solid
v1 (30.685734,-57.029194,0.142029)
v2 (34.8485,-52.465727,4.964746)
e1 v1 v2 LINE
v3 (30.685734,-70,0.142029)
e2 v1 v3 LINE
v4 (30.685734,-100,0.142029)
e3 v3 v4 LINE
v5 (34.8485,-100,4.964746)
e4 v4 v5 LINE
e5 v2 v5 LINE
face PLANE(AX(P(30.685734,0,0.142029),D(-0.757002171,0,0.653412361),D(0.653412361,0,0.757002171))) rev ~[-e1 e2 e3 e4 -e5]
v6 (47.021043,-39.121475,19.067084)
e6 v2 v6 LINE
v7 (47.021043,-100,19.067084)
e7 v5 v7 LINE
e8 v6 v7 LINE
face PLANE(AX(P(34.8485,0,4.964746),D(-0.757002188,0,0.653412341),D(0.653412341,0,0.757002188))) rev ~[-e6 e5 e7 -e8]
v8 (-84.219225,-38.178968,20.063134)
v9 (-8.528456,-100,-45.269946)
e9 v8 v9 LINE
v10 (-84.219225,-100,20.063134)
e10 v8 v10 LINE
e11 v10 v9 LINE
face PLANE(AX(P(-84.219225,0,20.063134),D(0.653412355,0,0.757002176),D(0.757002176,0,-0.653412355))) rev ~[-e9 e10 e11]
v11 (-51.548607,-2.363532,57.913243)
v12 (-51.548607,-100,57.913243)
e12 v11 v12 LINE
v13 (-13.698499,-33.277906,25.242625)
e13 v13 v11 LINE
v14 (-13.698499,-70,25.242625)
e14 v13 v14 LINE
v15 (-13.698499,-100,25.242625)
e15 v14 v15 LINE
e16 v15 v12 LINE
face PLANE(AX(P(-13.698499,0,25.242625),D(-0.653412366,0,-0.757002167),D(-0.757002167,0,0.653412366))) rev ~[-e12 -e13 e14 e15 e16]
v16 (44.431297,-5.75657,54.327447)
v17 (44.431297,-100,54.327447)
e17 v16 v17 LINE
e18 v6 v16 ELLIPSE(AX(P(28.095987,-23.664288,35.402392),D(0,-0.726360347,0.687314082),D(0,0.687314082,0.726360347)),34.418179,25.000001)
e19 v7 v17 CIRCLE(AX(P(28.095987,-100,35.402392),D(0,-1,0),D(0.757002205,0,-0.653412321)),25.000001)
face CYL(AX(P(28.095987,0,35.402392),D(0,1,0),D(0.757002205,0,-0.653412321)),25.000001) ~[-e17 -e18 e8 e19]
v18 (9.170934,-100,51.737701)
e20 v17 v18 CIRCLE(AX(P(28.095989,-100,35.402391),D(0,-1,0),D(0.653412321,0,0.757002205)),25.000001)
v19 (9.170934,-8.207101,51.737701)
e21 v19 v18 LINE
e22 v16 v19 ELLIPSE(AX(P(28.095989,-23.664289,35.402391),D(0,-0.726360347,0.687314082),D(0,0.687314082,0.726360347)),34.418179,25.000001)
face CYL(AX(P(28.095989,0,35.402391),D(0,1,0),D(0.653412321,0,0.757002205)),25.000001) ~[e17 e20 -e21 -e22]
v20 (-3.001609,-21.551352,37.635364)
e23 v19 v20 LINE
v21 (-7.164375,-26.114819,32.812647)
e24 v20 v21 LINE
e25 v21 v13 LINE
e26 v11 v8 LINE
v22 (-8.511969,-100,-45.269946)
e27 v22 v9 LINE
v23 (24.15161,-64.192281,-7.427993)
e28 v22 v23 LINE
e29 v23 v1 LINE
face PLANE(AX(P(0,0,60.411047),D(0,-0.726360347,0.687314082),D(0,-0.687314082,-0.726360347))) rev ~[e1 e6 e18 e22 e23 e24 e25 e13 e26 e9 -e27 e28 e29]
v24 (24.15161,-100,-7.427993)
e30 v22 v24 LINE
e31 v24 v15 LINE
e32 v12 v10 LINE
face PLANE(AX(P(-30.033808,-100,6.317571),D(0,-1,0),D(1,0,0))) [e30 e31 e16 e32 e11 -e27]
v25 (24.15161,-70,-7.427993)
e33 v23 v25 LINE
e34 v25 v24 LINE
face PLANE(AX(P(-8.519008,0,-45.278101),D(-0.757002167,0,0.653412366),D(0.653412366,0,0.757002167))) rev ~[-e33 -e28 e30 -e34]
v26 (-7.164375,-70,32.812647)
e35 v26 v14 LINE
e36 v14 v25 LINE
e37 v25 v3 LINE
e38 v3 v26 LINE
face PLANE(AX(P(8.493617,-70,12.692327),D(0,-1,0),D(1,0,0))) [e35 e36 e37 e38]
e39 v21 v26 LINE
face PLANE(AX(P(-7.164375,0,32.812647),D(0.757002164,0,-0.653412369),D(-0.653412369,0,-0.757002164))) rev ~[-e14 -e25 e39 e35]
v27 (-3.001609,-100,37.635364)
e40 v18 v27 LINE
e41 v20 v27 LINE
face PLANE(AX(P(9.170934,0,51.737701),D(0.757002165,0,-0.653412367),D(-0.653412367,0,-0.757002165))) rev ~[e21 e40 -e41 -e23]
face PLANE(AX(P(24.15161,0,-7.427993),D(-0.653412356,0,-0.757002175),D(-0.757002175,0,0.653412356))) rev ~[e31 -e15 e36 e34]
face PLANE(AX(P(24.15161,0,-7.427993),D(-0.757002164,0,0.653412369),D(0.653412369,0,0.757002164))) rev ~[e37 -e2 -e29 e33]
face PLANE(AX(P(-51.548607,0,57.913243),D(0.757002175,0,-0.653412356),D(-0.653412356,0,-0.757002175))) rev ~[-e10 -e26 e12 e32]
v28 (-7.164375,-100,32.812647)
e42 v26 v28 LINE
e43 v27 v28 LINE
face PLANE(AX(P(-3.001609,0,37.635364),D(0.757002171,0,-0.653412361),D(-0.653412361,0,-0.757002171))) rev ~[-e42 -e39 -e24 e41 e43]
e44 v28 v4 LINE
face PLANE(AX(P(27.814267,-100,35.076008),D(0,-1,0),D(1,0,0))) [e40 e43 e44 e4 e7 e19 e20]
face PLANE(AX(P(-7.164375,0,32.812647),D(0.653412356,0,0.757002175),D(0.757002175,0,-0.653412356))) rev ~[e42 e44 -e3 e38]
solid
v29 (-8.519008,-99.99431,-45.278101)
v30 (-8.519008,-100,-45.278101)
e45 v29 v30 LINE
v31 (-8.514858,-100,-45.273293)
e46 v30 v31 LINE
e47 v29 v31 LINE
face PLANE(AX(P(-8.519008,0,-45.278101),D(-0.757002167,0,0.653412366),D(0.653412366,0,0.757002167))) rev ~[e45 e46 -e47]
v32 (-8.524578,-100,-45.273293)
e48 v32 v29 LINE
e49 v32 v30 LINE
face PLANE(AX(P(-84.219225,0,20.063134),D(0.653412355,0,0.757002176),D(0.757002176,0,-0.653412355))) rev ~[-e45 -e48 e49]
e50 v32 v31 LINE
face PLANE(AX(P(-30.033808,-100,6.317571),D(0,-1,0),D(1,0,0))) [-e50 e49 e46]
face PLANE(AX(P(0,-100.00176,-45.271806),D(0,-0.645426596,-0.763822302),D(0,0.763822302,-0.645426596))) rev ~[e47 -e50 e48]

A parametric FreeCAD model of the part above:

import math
import FreeCAD as App
import Part
import Sketcher

V = App.Vector
Q = App.Units.Quantity


def add_polygon(sketch, points):
    """Adds a closed chain of lines whose ends are joined by coincident constraints."""
    first, n = sketch.GeometryCount, len(points)
    for a, b in zip(points, points[1:] + points[:1]):
        sketch.addGeometry(Part.LineSegment(App.Vector(*a, 0), App.Vector(*b, 0)), False)
    for i in range(n):
        sketch.addConstraint(Sketcher.Constraint("Coincident", first + i, 2, first + (i + 1) % n, 1))

doc = App.newDocument("Part")
body = doc.addObject("PartDesign::Body", "Body")
body.AllowCompound = True

# Sketch on XZ plane
sketch1 = body.newObject("Sketcher::SketchObject", "Sketch")
sketch1.AttachmentSupport = (doc.getObject("XZ_Plane"), [""])
sketch1.MapMode = "FlatFace"
add_polygon(sketch1, [(-14, 25), (24, -7), (31, 0), (-7, 33)])  # lines 0-3
sketch1.addConstraint([
    Sketcher.Constraint("Perpendicular", 0, 1),
    Sketcher.Constraint("Perpendicular", 1, 2),
    Sketcher.Constraint("Perpendicular", 2, 3),
    Sketcher.Constraint("Distance", 0, Q("50 mm")),
    Sketcher.Constraint("Distance", 1, Q("10 mm")),
    Sketcher.Constraint("DistanceX", 3, 2, -1, 1, Q("13.698499 mm")),
    Sketcher.Constraint("DistanceX", -1, 1, 0, 2, Q("24.15161 mm")),
    Sketcher.Constraint("DistanceY", -1, 1, 1, 2, Q("0.142029 mm")),
])
pad1 = body.newObject("PartDesign::Pad", "Pad")
pad1.Profile = sketch1
pad1.Length = 70

# Sketch on XZ plane
sketch2 = body.newObject("Sketcher::SketchObject", "Sketch001")
sketch2.AttachmentSupport = (doc.getObject("XZ_Plane"), [""])
sketch2.MapMode = "FlatFace"
add_polygon(sketch2, [(-84, 20), (-9, -45), (24, -7), (-14, 25), (-52, 58)])  # lines 0-4
sketch2.addGeometry(Part.LineSegment(V(35, 5, 0), V(47, 19, 0)), False)  # 5
sketch2.addGeometry(Part.ArcOfCircle(Part.Circle(V(28, 35, 0), V(0, 0, 1), 25), math.radians(-41), math.radians(49)), False)  # 6
sketch2.addGeometry(Part.ArcOfCircle(Part.Circle(V(28, 35, 0), V(0, 0, 1), 25), math.radians(49), math.radians(139)), False)  # 7
sketch2.addGeometry(Part.LineSegment(V(9, 52, 0), V(-3, 38, 0)), False)  # 8
sketch2.addGeometry(Part.LineSegment(V(-3, 38, 0), V(-7, 33, 0)), False)  # 9
sketch2.addGeometry(Part.LineSegment(V(-7, 33, 0), V(31, 0, 0)), False)  # 10
sketch2.addGeometry(Part.LineSegment(V(31, 0, 0), V(35, 5, 0)), False)  # 11
sketch2.addConstraint([
    Sketcher.Constraint("Tangent", 5, 2, 6, 1),
    Sketcher.Constraint("Tangent", 6, 2, 7, 1),
    Sketcher.Constraint("Tangent", 7, 2, 8, 1),
    Sketcher.Constraint("Coincident", 8, 2, 9, 1),
    Sketcher.Constraint("Coincident", 9, 2, 10, 1),
    Sketcher.Constraint("Coincident", 10, 2, 11, 1),
    Sketcher.Constraint("Coincident", 11, 2, 5, 1),
    Sketcher.Constraint("Equal", 6, 7),
    Sketcher.Constraint("Perpendicular", 0, 1),
    Sketcher.Constraint("Perpendicular", 1, 2),
    Sketcher.Constraint("Parallel", 2, 3),
    Sketcher.Constraint("Perpendicular", 3, 4),
    Sketcher.Constraint("Parallel", 4, 5),
    Sketcher.Constraint("Parallel", 5, 8),
    Sketcher.Constraint("Parallel", 8, 9),
    Sketcher.Constraint("Perpendicular", 9, 10),
    Sketcher.Constraint("Perpendicular", 10, 11),
    Sketcher.Constraint("Equal", 1, 2),
    Sketcher.Constraint("Equal", 2, 3),
    Sketcher.Constraint("Equal", 5, 8),
    Sketcher.Constraint("Equal", 4, 10),
    Sketcher.Constraint("Radius", 6, Q("25.000001 mm")),
    Sketcher.Constraint("DistanceY", 0, 2, -1, 1, Q("45.278101 mm")),
    Sketcher.Constraint("DistanceX", 2, 2, -1, 1, Q("13.698499 mm")),
    Sketcher.Constraint("DistanceY", -1, 1, 7, 2, Q("51.737701 mm")),
    Sketcher.Constraint("DistanceX", -1, 1, 11, 2, Q("34.8485 mm")),
    Sketcher.Constraint("DistanceX", 3, 2, 0, 2, Q("43.029599 mm")),
    Sketcher.Constraint("Distance", 5, Q("18.629191 mm")),
    Sketcher.Constraint("Distance", 9, Q("6.37081 mm")),
    Sketcher.Constraint("DistanceX", 6, 3, 6, 2, Q("16.33531 mm")),
])
pad2 = body.newObject("PartDesign::Pad", "Pad001")
pad2.Profile = sketch2
pad2.Length = 100

# Sketch on YZ plane
sketch3 = body.newObject("Sketcher::SketchObject", "Sketch002")
sketch3.AttachmentSupport = (doc.getObject("YZ_Plane"), [""])
sketch3.MapMode = "FlatFace"
add_polygon(sketch3, [(0, 60), (-100, -45), (-19, -114), (77, -12)])  # lines 0-3
sketch3.addConstraint([
    Sketcher.Constraint("PointOnObject", 3, 2, -2),
    Sketcher.Constraint("Parallel", 0, 2),
    Sketcher.Constraint("Perpendicular", 2, 3),
    Sketcher.Constraint("DistanceX", 1, 2, -1, 1, Q("18.930101 mm")),
    Sketcher.Constraint("Distance", 0, Q("145.496452 mm")),
    Sketcher.Constraint("DistanceX", 0, 2, -1, 1, Q("100.00176 mm")),
    Sketcher.Constraint("DistanceX", 1, 2, 2, 2, Q("95.903838 mm")),
    Sketcher.Constraint("DistanceY", 0, 2, -1, 1, Q("45.271806 mm")),
])
pocket1 = body.newObject("PartDesign::Pocket", "Pocket")
pocket1.Profile = sketch3
pocket1.Length = 200
pocket1.Midplane = True

doc.recompute()
